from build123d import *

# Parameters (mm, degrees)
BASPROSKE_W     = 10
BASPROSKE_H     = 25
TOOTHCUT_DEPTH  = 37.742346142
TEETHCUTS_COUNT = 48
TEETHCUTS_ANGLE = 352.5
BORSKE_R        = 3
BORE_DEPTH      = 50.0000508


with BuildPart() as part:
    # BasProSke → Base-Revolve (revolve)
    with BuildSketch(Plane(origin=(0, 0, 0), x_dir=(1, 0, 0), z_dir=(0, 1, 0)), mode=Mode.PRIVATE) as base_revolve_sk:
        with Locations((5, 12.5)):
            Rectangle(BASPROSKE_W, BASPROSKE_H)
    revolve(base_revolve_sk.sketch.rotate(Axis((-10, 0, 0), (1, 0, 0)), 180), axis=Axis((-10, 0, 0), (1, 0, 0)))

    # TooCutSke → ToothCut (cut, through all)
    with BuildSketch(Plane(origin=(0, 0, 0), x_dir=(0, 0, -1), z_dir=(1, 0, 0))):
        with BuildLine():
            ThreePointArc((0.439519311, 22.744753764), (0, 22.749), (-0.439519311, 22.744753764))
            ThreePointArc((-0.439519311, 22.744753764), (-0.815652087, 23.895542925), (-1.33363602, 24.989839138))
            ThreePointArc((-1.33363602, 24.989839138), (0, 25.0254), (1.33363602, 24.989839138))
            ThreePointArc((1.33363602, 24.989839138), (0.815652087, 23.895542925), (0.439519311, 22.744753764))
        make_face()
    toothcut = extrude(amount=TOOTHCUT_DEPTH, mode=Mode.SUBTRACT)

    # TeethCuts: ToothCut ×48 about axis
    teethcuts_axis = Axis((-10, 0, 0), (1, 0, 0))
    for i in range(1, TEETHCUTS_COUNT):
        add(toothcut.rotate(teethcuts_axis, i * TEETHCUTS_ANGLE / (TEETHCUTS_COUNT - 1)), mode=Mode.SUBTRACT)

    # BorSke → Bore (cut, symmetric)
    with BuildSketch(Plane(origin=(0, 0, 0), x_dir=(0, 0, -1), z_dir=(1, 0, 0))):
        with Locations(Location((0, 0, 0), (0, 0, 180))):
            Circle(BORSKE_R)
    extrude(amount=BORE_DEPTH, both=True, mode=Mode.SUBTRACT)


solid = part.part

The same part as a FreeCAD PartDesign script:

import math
import FreeCAD as App
import Part
import Sketcher

V = App.Vector
Q = App.Units.Quantity


def add_polygon(sketch, points):
    """Adds a closed chain of lines whose ends are joined by coincident constraints."""
    first, n = sketch.GeometryCount, len(points)
    for a, b in zip(points, points[1:] + points[:1]):
        sketch.addGeometry(Part.LineSegment(App.Vector(*a, 0), App.Vector(*b, 0)), False)
    for i in range(n):
        sketch.addConstraint(Sketcher.Constraint("Coincident", first + i, 2, first + (i + 1) % n, 1))

doc = App.newDocument("Part")
body = doc.addObject("PartDesign::Body", "Body")

sketch1 = body.newObject("Sketcher::SketchObject", "Sketch")
sketch1.AttachmentSupport = (doc.getObject("XZ_Plane"), [""])
sketch1.MapMode = "FlatFace"
add_polygon(sketch1, [(0, -25), (0, 0), (10, 0), (10, -25)])
sketch1.addConstraint([
    Sketcher.Constraint("Vertical", 0),
    Sketcher.Constraint("Horizontal", 1),
    Sketcher.Constraint("Vertical", 2),
    Sketcher.Constraint("Horizontal", 3),
    Sketcher.Constraint("Coincident", 0, 2, -1, 1),
    Sketcher.Constraint("DistanceX", 1, 1, 1, 2, Q("10 mm")),
    Sketcher.Constraint("DistanceY", 0, 1, 0, 2, Q("25 mm")),
])
revolution = body.newObject("PartDesign::Revolution", "Revolution")
revolution.Profile = sketch1
revolution.ReferenceAxis = (sketch1, ["H_Axis"])
revolution.Angle = 360

sketch2 = body.newObject("Sketcher::SketchObject", "Sketch001")
sketch2.AttachmentSupport = (doc.getObject("YZ_Plane"), [""])
sketch2.MapMode = "FlatFace"
sketch2.addGeometry([
    Part.ArcOfCircle(Part.Circle(V(-0.000001, 0, 0), V(0, 0, 1), 22.749001), math.radians(-1.107045), math.radians(1.107045)),
    Part.ArcOfCircle(Part.Circle(V(20.343612, -9.734385, 0), V(0, 0, 1), 9.6), math.radians(61.054205), math.radians(75.515451)),
    Part.ArcOfCircle(Part.Circle(V(0, 0, 0), V(0, 0, 1), 25.0254), math.radians(-3.054813), math.radians(3.054813)),
    Part.ArcOfCircle(Part.Circle(V(20.343612, 9.734385, 0), V(0, 0, 1), 9.6), math.radians(-75.515451), math.radians(-61.054205)),
], False)
sketch2.addConstraint([
    Sketcher.Constraint("Coincident", 0, 1, 1, 2),
    Sketcher.Constraint("Coincident", 1, 1, 2, 1),
    Sketcher.Constraint("Coincident", 2, 2, 3, 2),
    Sketcher.Constraint("Coincident", 3, 1, 0, 2),
    Sketcher.Constraint("Coincident", 0, 3, -1, 1),
    Sketcher.Constraint("Coincident", 2, 3, -1, 1),
    Sketcher.Constraint("Equal", 1, 3),
    Sketcher.Constraint("Symmetric", 1, 3, 3, 3, -1),
    Sketcher.Constraint("Radius", 1, Q("9.6 mm")),
    Sketcher.Constraint("Radius", 0, Q("22.749001 mm")),
    Sketcher.Constraint("Radius", 2, Q("25.0254 mm")),
    Sketcher.Constraint("DistanceY", 0, 1, -1, 1, Q("0.439519 mm")),
    Sketcher.Constraint("DistanceX", -1, 1, 2, 2, Q("24.989839 mm")),
])
pocket1 = body.newObject("PartDesign::Pocket", "Pocket")
pocket1.Profile = sketch2
pocket1.Type = "ThroughAll"
pocket1.Reversed = True
doc.recompute()

polarpattern = body.newObject("PartDesign::PolarPattern", "PolarPattern")
polarpattern.Originals = [pocket1]
polarpattern.Axis = (doc.getObject("X_Axis"), [""])
polarpattern.Angle = 360
polarpattern.Occurrences = 48
body.Tip = polarpattern

sketch3 = body.newObject("Sketcher::SketchObject", "Sketch002")
sketch3.AttachmentSupport = (doc.getObject("YZ_Plane"), [""])
sketch3.MapMode = "FlatFace"
sketch3.addGeometry(Part.Circle(V(0, 0, 0), V(0, 0, 1), 3), False)
sketch3.addConstraint([
    Sketcher.Constraint("Coincident", 0, 3, -1, 1),
    Sketcher.Constraint("Diameter", 0, Q("6 mm")),
])
pocket2 = body.newObject("PartDesign::Pocket", "Pocket001")
pocket2.Profile = sketch3
pocket2.Length = 100.000102
pocket2.Midplane = True

doc.recompute()
